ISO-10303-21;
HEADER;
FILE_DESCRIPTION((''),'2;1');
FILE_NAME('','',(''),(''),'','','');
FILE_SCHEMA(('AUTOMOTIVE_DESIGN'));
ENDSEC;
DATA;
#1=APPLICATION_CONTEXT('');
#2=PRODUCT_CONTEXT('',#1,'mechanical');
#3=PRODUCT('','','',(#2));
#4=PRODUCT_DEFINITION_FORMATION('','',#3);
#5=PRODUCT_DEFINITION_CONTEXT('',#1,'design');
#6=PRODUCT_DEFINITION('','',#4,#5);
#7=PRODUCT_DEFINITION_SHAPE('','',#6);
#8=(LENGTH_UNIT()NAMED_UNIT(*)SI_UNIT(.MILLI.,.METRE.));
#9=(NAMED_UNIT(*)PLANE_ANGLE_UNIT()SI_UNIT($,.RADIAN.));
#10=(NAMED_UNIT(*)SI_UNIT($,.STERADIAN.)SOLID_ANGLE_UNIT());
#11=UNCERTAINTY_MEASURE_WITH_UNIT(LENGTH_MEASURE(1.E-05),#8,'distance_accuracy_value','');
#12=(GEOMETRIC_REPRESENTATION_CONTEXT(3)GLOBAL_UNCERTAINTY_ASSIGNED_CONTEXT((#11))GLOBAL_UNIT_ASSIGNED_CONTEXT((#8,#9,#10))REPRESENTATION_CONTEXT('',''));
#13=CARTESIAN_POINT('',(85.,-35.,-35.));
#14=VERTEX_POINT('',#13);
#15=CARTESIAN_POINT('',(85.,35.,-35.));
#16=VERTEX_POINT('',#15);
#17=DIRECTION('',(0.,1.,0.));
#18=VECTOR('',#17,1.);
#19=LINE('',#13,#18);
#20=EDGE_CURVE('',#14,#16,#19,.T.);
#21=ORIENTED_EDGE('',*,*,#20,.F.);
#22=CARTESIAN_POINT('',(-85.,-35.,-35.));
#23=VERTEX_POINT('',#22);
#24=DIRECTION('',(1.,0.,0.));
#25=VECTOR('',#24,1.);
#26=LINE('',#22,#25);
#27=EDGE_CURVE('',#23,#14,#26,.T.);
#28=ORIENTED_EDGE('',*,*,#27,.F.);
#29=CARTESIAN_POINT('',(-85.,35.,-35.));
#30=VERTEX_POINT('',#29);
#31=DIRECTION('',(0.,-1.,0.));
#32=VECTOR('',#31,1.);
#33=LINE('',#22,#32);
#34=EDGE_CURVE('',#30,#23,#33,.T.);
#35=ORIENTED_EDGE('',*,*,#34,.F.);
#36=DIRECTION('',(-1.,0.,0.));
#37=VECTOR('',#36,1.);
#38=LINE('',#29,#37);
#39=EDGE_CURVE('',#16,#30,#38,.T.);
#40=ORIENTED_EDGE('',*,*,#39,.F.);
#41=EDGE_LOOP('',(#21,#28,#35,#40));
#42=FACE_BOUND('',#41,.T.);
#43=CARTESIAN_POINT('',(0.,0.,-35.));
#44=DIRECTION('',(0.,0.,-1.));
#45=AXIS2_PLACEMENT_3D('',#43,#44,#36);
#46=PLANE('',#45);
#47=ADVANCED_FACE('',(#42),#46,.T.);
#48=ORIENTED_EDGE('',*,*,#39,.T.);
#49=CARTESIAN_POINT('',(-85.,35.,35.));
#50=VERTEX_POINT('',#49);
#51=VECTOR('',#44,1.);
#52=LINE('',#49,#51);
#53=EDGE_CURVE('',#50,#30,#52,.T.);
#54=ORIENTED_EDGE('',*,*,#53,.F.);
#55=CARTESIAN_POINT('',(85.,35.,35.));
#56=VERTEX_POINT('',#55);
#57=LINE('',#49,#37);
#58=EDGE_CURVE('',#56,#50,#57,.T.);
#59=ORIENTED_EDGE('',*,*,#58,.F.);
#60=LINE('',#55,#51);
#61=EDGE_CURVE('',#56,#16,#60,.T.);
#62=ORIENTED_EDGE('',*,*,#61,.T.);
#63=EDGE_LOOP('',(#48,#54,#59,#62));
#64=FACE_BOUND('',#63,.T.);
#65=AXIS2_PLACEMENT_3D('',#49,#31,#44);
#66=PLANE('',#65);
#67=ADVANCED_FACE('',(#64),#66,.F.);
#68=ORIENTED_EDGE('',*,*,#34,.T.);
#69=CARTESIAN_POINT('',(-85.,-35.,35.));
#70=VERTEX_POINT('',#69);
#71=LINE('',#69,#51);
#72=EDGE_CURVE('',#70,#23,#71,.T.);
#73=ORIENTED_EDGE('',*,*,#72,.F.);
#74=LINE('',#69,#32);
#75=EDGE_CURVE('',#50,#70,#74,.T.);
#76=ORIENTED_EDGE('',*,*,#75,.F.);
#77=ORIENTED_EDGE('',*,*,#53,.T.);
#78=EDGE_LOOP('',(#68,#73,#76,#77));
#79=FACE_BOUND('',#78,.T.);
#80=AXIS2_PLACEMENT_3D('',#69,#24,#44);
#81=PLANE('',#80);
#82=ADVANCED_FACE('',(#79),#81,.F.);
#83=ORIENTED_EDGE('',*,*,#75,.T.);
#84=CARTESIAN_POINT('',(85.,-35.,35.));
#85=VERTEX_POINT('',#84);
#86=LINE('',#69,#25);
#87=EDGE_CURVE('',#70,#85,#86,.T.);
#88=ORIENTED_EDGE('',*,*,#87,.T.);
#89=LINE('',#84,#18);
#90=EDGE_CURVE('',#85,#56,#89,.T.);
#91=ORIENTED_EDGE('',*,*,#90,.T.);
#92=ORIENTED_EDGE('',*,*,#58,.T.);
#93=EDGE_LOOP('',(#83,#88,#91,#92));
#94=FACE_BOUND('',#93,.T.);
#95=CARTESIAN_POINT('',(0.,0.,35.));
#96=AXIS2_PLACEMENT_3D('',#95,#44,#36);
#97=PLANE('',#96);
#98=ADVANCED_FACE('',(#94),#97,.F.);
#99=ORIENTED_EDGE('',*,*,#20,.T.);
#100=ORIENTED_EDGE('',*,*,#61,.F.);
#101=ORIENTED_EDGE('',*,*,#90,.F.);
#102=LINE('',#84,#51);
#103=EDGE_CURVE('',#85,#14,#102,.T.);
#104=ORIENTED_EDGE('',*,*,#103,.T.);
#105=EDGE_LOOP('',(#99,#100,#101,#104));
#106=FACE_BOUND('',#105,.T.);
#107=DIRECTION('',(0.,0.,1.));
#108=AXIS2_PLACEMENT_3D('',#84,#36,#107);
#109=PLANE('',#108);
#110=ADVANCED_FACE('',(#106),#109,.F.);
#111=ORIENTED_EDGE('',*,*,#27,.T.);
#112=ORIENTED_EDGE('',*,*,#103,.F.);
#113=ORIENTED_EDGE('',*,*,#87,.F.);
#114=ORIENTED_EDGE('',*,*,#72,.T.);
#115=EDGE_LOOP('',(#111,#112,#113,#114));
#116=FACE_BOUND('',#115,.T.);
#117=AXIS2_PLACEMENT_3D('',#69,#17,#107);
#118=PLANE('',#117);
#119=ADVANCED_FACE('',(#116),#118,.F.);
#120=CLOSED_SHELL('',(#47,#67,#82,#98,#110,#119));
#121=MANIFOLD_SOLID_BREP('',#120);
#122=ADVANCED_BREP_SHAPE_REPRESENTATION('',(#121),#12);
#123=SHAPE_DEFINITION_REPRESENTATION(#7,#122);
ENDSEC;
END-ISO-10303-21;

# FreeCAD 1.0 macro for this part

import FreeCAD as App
import Part
import Sketcher
from FreeCAD import Vector


def add_polygon(sketch, points):
    """Adds a closed chain of lines whose ends are joined by coincident constraints."""
    first, n = sketch.GeometryCount, len(points)
    for a, b in zip(points, points[1:] + points[:1]):
        sketch.addGeometry(Part.LineSegment(App.Vector(*a, 0), App.Vector(*b, 0)), False)
    for i in range(n):
        sketch.addConstraint(Sketcher.Constraint("Coincident", first + i, 2, first + (i + 1) % n, 1))

doc = App.newDocument("Part")
body = doc.addObject("PartDesign::Body", "Body")

sketch1 = doc.addObject("Sketcher::SketchObject", "Sketch")
body.addObject(sketch1)
sketch1.AttachmentSupport = (doc.XY_Plane, [""])
sketch1.MapMode = "FlatFace"
add_polygon(sketch1, [(-85, 35), (-85, -35), (85, -35), (85, 35)])
sketch1.addConstraint([
    Sketcher.Constraint("Vertical", 0),
    Sketcher.Constraint("Horizontal", 1),
    Sketcher.Constraint("Vertical", 2),
    Sketcher.Constraint("Horizontal", 3),
    Sketcher.Constraint("Symmetric", 0, 2, 2, 2, -1, 1),
    Sketcher.Constraint("DistanceX", 1, 1, 1, 2, 170.0),
    Sketcher.Constraint("DistanceY", 0, 2, 0, 1, 70.0),
])
pad1 = doc.addObject("PartDesign::Pad", "Pad")
body.addObject(pad1)
pad1.Profile = sketch1
pad1.Length = 70
pad1.Midplane = True

doc.recompute()
